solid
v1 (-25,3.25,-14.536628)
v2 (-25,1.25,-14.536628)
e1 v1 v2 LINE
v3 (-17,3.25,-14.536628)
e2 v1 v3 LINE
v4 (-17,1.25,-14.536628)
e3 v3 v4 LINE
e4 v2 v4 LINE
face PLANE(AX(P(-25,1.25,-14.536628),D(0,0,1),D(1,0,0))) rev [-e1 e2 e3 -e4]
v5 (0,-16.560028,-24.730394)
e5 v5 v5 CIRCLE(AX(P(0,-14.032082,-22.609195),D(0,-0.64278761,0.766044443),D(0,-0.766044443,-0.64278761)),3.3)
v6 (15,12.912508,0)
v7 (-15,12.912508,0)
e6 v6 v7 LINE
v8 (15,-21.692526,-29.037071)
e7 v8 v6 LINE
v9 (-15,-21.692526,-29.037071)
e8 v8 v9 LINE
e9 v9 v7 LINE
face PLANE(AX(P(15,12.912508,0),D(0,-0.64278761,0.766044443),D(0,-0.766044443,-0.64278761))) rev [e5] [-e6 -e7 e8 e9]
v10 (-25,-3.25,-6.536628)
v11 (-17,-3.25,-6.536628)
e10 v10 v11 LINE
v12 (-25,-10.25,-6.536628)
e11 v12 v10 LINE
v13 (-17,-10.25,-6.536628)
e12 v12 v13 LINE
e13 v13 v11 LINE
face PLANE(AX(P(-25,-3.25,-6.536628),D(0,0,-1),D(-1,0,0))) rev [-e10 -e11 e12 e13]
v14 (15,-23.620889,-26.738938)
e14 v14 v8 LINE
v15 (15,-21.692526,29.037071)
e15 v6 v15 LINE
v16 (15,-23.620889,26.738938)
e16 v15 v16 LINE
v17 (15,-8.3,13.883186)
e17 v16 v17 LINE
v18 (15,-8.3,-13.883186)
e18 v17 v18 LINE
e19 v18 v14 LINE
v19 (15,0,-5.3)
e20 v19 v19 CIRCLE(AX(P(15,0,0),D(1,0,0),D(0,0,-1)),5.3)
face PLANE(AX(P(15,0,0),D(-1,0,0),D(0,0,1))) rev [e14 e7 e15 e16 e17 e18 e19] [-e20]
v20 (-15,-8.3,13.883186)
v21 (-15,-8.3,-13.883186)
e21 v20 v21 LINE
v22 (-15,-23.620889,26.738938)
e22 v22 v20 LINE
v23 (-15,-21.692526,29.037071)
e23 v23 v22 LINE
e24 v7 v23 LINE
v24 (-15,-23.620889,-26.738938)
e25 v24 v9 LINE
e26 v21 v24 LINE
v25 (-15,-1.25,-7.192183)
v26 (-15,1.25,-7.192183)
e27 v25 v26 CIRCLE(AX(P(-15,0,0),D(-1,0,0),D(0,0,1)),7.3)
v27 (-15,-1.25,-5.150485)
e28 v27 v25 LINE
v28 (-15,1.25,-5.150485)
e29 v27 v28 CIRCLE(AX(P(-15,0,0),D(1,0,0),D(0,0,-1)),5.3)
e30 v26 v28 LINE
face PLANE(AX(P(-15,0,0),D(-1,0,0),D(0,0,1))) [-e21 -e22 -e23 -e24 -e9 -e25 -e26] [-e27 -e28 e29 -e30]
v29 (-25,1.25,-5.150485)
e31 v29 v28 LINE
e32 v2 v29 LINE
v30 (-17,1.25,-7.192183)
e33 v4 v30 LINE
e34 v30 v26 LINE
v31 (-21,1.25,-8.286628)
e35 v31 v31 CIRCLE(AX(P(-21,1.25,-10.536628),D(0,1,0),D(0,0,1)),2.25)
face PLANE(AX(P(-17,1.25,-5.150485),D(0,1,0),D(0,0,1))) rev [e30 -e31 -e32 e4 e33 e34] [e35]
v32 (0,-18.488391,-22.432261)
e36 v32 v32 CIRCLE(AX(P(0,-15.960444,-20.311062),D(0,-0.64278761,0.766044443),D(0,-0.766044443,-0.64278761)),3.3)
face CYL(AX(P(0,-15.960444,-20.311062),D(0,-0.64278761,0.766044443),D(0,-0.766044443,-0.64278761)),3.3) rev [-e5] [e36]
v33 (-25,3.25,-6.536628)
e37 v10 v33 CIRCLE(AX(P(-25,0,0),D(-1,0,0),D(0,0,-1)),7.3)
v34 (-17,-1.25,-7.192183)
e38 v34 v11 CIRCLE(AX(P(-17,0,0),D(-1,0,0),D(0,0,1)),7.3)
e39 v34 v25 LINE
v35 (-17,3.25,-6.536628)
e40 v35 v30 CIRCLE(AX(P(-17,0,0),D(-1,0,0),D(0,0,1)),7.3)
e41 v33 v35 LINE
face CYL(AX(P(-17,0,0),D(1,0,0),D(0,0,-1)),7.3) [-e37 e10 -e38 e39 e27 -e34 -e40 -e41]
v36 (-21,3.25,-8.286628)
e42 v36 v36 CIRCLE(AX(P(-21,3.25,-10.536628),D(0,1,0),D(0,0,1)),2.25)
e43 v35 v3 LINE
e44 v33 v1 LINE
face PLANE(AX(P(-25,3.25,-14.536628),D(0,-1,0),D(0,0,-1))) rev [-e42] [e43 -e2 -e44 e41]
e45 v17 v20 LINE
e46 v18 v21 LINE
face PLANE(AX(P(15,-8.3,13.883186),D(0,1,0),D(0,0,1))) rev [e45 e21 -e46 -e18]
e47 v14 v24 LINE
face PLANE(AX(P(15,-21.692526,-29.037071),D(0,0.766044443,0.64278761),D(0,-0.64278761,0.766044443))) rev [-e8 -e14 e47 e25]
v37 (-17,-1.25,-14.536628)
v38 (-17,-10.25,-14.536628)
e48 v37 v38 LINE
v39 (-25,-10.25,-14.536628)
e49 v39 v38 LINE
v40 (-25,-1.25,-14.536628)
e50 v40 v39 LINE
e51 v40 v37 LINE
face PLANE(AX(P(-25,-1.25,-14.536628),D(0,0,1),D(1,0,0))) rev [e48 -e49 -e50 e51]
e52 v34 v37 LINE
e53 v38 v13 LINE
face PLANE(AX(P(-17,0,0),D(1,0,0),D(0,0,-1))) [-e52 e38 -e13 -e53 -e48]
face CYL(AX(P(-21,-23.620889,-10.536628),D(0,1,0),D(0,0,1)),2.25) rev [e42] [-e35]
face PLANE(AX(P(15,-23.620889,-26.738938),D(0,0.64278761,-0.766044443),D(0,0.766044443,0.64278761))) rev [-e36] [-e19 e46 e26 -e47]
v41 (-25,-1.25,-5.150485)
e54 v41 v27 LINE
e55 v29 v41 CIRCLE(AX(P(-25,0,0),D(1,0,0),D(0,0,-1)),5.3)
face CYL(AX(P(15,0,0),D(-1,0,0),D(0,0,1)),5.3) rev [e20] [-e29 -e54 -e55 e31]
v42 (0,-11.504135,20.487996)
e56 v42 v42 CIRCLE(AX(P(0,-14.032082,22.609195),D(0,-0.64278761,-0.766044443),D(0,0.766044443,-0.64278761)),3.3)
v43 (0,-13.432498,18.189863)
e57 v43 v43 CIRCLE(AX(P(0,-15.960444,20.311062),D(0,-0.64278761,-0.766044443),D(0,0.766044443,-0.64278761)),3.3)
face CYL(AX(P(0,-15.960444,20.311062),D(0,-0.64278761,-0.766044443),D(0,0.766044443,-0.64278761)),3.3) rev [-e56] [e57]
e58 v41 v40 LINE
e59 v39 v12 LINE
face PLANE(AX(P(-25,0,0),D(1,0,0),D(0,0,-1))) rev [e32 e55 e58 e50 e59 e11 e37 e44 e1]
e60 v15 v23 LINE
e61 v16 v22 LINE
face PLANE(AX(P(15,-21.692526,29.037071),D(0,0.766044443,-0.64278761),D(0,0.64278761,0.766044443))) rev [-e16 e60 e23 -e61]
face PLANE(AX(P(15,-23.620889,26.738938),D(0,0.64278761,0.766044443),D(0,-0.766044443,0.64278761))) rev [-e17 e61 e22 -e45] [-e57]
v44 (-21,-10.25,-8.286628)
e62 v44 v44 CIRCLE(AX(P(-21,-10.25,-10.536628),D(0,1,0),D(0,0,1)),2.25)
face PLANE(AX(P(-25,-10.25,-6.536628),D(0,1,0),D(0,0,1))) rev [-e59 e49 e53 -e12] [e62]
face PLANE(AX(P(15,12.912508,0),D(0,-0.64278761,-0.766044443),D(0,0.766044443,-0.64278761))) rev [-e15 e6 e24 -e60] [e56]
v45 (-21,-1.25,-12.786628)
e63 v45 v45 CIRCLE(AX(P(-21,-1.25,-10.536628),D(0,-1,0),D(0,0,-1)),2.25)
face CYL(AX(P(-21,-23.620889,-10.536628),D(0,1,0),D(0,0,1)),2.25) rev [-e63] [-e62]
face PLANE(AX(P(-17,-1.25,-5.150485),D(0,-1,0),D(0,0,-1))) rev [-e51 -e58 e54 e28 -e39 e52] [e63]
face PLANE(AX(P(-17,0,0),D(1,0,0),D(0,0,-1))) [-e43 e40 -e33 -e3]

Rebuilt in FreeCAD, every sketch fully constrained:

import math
import FreeCAD as App
import Part
import Sketcher
Q = App.Units.Quantity

doc = App.newDocument("Part")
body = doc.addObject("PartDesign::Body", "Body")

# Sketch on YZ plane
sketch1 = doc.addObject("Sketcher::SketchObject", "Sketch")
body.addObject(sketch1)
sketch1.AttachmentSupport = (doc.YZ_Plane, [""])
sketch1.MapMode = "FlatFace"
sketch1.addGeometry(Part.LineSegment(App.Vector(12.9, 0, 0), App.Vector(-21.7, 29, 0)), False)
sketch1.addGeometry(Part.LineSegment(App.Vector(-21.7, 29, 0), App.Vector(-23.6, 26.7, 0)), False)
sketch1.addGeometry(Part.LineSegment(App.Vector(-23.6, 26.7, 0), App.Vector(-8.3, 13.9, 0)), False)
sketch1.addGeometry(Part.LineSegment(App.Vector(-8.3, 13.9, 0), App.Vector(-8.3, -13.9, 0)), False)
sketch1.addGeometry(Part.LineSegment(App.Vector(-8.3, -13.9, 0), App.Vector(-23.6, -26.7, 0)), False)
sketch1.addGeometry(Part.LineSegment(App.Vector(-23.6, -26.7, 0), App.Vector(-21.7, -29, 0)), False)
sketch1.addGeometry(Part.LineSegment(App.Vector(-21.7, -29, 0), App.Vector(12.9, 0, 0)), False)
sketch1.addGeometry(Part.Circle(App.Vector(0, 0, 0), App.Vector(0, 0, 1), 5.3), False)
sketch1.addConstraint(Sketcher.Constraint("Coincident", 0, 2, 1, 1))
sketch1.addConstraint(Sketcher.Constraint("Coincident", 1, 2, 2, 1))
sketch1.addConstraint(Sketcher.Constraint("Coincident", 2, 2, 3, 1))
sketch1.addConstraint(Sketcher.Constraint("Coincident", 3, 2, 4, 1))
sketch1.addConstraint(Sketcher.Constraint("Coincident", 4, 2, 5, 1))
sketch1.addConstraint(Sketcher.Constraint("Coincident", 5, 2, 6, 1))
sketch1.addConstraint(Sketcher.Constraint("Coincident", 6, 2, 0, 1))
sketch1.addConstraint(Sketcher.Constraint("Vertical", 3))
sketch1.addConstraint(Sketcher.Constraint("Coincident", 7, 3, -1, 1))
sketch1.addConstraint(Sketcher.Constraint("Symmetric", 1, 2, 4, 2, -1))
sketch1.addConstraint(Sketcher.Constraint("Symmetric", 0, 2, 5, 2, -1))
sketch1.addConstraint(Sketcher.Constraint("PointOnObject", 6, 2, -1))
sketch1.addConstraint(Sketcher.Constraint("Perpendicular", 0, 1))
sketch1.addConstraint(Sketcher.Constraint("Perpendicular", 1, 2))
sketch1.addConstraint(Sketcher.Constraint("Perpendicular", 4, 5))
sketch1.addConstraint(Sketcher.Constraint("Diameter", 7, Q("10.6 mm")))
sketch1.addConstraint(Sketcher.Constraint("Angle", 0, Q("140 deg")))
sketch1.addConstraint(Sketcher.Constraint("Distance", 1, Q("3 mm")))
sketch1.addConstraint(Sketcher.Constraint("Distance", 2, Q("20 mm")))
sketch1.addConstraint(Sketcher.Constraint("DistanceX", 2, 2, -1, 1, Q("8.3 mm")))
sketch1.addConstraint(Sketcher.Constraint("DistanceY", 3, 2, 3, 1, Q("27.766371 mm")))
pad1 = doc.addObject("PartDesign::Pad", "Pad")
body.addObject(pad1)
pad1.Profile = sketch1
pad1.Length = 30
pad1.Midplane = True

# Sketch on an angled plane
sketch2 = doc.addObject("Sketcher::SketchObject", "Sketch001")
body.addObject(sketch2)
sketch2.Placement = App.Placement(App.Vector(0, 3.406774, 4.060036), App.Rotation(App.Vector(-1, 0, 0), App.Vector(0, 0.766044443, -0.64278761), App.Vector(0, -0.64278761, -0.766044443), "ZXY"))
sketch2.addGeometry(Part.Circle(App.Vector(0, -25.3, 0), App.Vector(0, 0, 1), 3.3), False)
sketch2.addConstraint(Sketcher.Constraint("PointOnObject", 0, 3, -2))
sketch2.addConstraint(Sketcher.Constraint("Diameter", 0, Q("6.6 mm")))
sketch2.addConstraint(Sketcher.Constraint("DistanceY", 0, 3, -1, 1, Q("25.282109 mm")))
doc.recompute()
hole = doc.addObject("PartDesign::Hole", "Hole")
body.addObject(hole)
hole.Profile = sketch2
hole.ThreadType = "None"
hole.Diameter = 6.6
hole.DepthType = "ThroughAll"
doc.recompute()

mirrored = doc.addObject("PartDesign::Mirrored", "Mirrored")
body.addObject(mirrored)
mirrored.Originals = [hole]
mirrored.MirrorPlane = (doc.XY_Plane, [""])
body.Tip = mirrored

# Sketch on YZ plane
sketch3 = doc.addObject("Sketcher::SketchObject", "Sketch002")
body.addObject(sketch3)
sketch3.AttachmentSupport = (doc.YZ_Plane, [""])
sketch3.MapMode = "FlatFace"
sketch3.AttachmentOffset = App.Placement(App.Vector(0, 0, -15), App.Rotation())
sketch3.addGeometry(Part.LineSegment(App.Vector(1.2, -7.2, 0), App.Vector(1.2, -5.2, 0)), False)
sketch3.addGeometry(Part.ArcOfCircle(Part.Circle(App.Vector(0, 0, 0), App.Vector(0, 0, 1), 5.3), math.radians(-76), math.radians(256)), False)
sketch3.addGeometry(Part.LineSegment(App.Vector(-1.2, -5.2, 0), App.Vector(-1.2, -7.2, 0)), False)
sketch3.addGeometry(Part.ArcOfCircle(Part.Circle(App.Vector(0, 0, 0), App.Vector(0, 0, 1), 7.3), math.radians(-80), math.radians(260)), False)
sketch3.addConstraint(Sketcher.Constraint("Coincident", 0, 2, 1, 1))
sketch3.addConstraint(Sketcher.Constraint("Coincident", 1, 2, 2, 1))
sketch3.addConstraint(Sketcher.Constraint("Coincident", 2, 2, 3, 2))
sketch3.addConstraint(Sketcher.Constraint("Coincident", 3, 1, 0, 1))
sketch3.addConstraint(Sketcher.Constraint("Vertical", 0))
sketch3.addConstraint(Sketcher.Constraint("Vertical", 2))
sketch3.addConstraint(Sketcher.Constraint("Coincident", 1, 3, -1, 1))
sketch3.addConstraint(Sketcher.Constraint("Coincident", 3, 3, -1, 1))
sketch3.addConstraint(Sketcher.Constraint("Horizontal", 0, 2, 1, 2))
sketch3.addConstraint(Sketcher.Constraint("Radius", 1, Q("5.3 mm")))
sketch3.addConstraint(Sketcher.Constraint("Radius", 3, Q("7.3 mm")))
sketch3.addConstraint(Sketcher.Constraint("DistanceX", 1, 2, 0, 2, Q("2.5 mm")))
pad2 = doc.addObject("PartDesign::Pad", "Pad001")
body.addObject(pad2)
pad2.Profile = sketch3
pad2.Length = 2
pad2.Reversed = True

# Sketch on YZ plane
sketch4 = doc.addObject("Sketcher::SketchObject", "Sketch003")
body.addObject(sketch4)
sketch4.AttachmentSupport = (doc.YZ_Plane, [""])
sketch4.MapMode = "FlatFace"
sketch4.AttachmentOffset = App.Placement(App.Vector(0, 0, -17), App.Rotation())
sketch4.addGeometry(Part.LineSegment(App.Vector(1.2, -14.5, 0), App.Vector(1.2, -5.2, 0)), False)
sketch4.addGeometry(Part.ArcOfCircle(Part.Circle(App.Vector(0, 0, 0), App.Vector(0, 0, 1), 5.3), math.radians(-76), math.radians(256)), False)
sketch4.addGeometry(Part.LineSegment(App.Vector(-1.2, -5.2, 0), App.Vector(-1.2, -14.5, 0)), False)
sketch4.addGeometry(Part.LineSegment(App.Vector(-1.2, -14.5, 0), App.Vector(-10.2, -14.5, 0)), False)
sketch4.addGeometry(Part.LineSegment(App.Vector(-10.2, -14.5, 0), App.Vector(-10.2, -6.5, 0)), False)
sketch4.addGeometry(Part.LineSegment(App.Vector(-10.2, -6.5, 0), App.Vector(-3.2, -6.5, 0)), False)
sketch4.addGeometry(Part.ArcOfCircle(Part.Circle(App.Vector(0, 0, 0), App.Vector(0, 0, 1), 7.3), math.radians(-64), math.radians(244)), False)
sketch4.addGeometry(Part.LineSegment(App.Vector(3.2, -6.5, 0), App.Vector(3.2, -14.5, 0)), False)
sketch4.addGeometry(Part.LineSegment(App.Vector(3.2, -14.5, 0), App.Vector(1.2, -14.5, 0)), False)
sketch4.addConstraint(Sketcher.Constraint("Coincident", 0, 2, 1, 1))
sketch4.addConstraint(Sketcher.Constraint("Coincident", 1, 2, 2, 1))
sketch4.addConstraint(Sketcher.Constraint("Coincident", 2, 2, 3, 1))
sketch4.addConstraint(Sketcher.Constraint("Coincident", 3, 2, 4, 1))
sketch4.addConstraint(Sketcher.Constraint("Coincident", 4, 2, 5, 1))
sketch4.addConstraint(Sketcher.Constraint("Coincident", 5, 2, 6, 2))
sketch4.addConstraint(Sketcher.Constraint("Coincident", 6, 1, 7, 1))
sketch4.addConstraint(Sketcher.Constraint("Coincident", 7, 2, 8, 1))
sketch4.addConstraint(Sketcher.Constraint("Coincident", 8, 2, 0, 1))
sketch4.addConstraint(Sketcher.Constraint("Vertical", 0))
sketch4.addConstraint(Sketcher.Constraint("Vertical", 2))
sketch4.addConstraint(Sketcher.Constraint("Horizontal", 3))
sketch4.addConstraint(Sketcher.Constraint("Vertical", 4))
sketch4.addConstraint(Sketcher.Constraint("Horizontal", 5))
sketch4.addConstraint(Sketcher.Constraint("Vertical", 7))
sketch4.addConstraint(Sketcher.Constraint("Horizontal", 8))
sketch4.addConstraint(Sketcher.Constraint("Coincident", 1, 3, -1, 1))
sketch4.addConstraint(Sketcher.Constraint("Coincident", 6, 3, -1, 1))
sketch4.addConstraint(Sketcher.Constraint("Symmetric", 2, 2, 8, 2, -2))
sketch4.addConstraint(Sketcher.Constraint("Horizontal", 5, 2, 6, 1))
sketch4.addConstraint(Sketcher.Constraint("Radius", 1, Q("5.3 mm")))
sketch4.addConstraint(Sketcher.Constraint("Radius", 6, Q("7.3 mm")))
sketch4.addConstraint(Sketcher.Constraint("DistanceX", 3, 2, 3, 1, Q("9 mm")))
sketch4.addConstraint(Sketcher.Constraint("DistanceX", 5, 1, 5, 2, Q("7 mm")))
sketch4.addConstraint(Sketcher.Constraint("DistanceY", 4, 1, 4, 2, Q("8 mm")))
sketch4.addConstraint(Sketcher.Constraint("DistanceX", 1, 2, 0, 2, Q("2.5 mm")))
pad3 = doc.addObject("PartDesign::Pad", "Pad002")
body.addObject(pad3)
pad3.Profile = sketch4
pad3.Length = 8
pad3.Reversed = True

# Sketch on XZ plane
sketch5 = doc.addObject("Sketcher::SketchObject", "Sketch004")
body.addObject(sketch5)
sketch5.AttachmentSupport = (doc.XZ_Plane, [""])
sketch5.MapMode = "FlatFace"
sketch5.AttachmentOffset = App.Placement(App.Vector(0, 0, -3.25), App.Rotation())
sketch5.addGeometry(Part.Circle(App.Vector(-21, -10.5, 0), App.Vector(0, 0, 1), 2.2), False)
sketch5.addConstraint(Sketcher.Constraint("Diameter", 0, Q("4.5 mm")))
sketch5.addConstraint(Sketcher.Constraint("DistanceX", 0, 3, -1, 1, Q("21 mm")))
sketch5.addConstraint(Sketcher.Constraint("DistanceY", 0, 3, -1, 1, Q("10.536628 mm")))
pocket1 = doc.addObject("PartDesign::Pocket", "Pocket")
body.addObject(pocket1)
pocket1.Profile = sketch5
pocket1.Type = "ThroughAll"
pocket1.Reversed = True

doc.recompute()
